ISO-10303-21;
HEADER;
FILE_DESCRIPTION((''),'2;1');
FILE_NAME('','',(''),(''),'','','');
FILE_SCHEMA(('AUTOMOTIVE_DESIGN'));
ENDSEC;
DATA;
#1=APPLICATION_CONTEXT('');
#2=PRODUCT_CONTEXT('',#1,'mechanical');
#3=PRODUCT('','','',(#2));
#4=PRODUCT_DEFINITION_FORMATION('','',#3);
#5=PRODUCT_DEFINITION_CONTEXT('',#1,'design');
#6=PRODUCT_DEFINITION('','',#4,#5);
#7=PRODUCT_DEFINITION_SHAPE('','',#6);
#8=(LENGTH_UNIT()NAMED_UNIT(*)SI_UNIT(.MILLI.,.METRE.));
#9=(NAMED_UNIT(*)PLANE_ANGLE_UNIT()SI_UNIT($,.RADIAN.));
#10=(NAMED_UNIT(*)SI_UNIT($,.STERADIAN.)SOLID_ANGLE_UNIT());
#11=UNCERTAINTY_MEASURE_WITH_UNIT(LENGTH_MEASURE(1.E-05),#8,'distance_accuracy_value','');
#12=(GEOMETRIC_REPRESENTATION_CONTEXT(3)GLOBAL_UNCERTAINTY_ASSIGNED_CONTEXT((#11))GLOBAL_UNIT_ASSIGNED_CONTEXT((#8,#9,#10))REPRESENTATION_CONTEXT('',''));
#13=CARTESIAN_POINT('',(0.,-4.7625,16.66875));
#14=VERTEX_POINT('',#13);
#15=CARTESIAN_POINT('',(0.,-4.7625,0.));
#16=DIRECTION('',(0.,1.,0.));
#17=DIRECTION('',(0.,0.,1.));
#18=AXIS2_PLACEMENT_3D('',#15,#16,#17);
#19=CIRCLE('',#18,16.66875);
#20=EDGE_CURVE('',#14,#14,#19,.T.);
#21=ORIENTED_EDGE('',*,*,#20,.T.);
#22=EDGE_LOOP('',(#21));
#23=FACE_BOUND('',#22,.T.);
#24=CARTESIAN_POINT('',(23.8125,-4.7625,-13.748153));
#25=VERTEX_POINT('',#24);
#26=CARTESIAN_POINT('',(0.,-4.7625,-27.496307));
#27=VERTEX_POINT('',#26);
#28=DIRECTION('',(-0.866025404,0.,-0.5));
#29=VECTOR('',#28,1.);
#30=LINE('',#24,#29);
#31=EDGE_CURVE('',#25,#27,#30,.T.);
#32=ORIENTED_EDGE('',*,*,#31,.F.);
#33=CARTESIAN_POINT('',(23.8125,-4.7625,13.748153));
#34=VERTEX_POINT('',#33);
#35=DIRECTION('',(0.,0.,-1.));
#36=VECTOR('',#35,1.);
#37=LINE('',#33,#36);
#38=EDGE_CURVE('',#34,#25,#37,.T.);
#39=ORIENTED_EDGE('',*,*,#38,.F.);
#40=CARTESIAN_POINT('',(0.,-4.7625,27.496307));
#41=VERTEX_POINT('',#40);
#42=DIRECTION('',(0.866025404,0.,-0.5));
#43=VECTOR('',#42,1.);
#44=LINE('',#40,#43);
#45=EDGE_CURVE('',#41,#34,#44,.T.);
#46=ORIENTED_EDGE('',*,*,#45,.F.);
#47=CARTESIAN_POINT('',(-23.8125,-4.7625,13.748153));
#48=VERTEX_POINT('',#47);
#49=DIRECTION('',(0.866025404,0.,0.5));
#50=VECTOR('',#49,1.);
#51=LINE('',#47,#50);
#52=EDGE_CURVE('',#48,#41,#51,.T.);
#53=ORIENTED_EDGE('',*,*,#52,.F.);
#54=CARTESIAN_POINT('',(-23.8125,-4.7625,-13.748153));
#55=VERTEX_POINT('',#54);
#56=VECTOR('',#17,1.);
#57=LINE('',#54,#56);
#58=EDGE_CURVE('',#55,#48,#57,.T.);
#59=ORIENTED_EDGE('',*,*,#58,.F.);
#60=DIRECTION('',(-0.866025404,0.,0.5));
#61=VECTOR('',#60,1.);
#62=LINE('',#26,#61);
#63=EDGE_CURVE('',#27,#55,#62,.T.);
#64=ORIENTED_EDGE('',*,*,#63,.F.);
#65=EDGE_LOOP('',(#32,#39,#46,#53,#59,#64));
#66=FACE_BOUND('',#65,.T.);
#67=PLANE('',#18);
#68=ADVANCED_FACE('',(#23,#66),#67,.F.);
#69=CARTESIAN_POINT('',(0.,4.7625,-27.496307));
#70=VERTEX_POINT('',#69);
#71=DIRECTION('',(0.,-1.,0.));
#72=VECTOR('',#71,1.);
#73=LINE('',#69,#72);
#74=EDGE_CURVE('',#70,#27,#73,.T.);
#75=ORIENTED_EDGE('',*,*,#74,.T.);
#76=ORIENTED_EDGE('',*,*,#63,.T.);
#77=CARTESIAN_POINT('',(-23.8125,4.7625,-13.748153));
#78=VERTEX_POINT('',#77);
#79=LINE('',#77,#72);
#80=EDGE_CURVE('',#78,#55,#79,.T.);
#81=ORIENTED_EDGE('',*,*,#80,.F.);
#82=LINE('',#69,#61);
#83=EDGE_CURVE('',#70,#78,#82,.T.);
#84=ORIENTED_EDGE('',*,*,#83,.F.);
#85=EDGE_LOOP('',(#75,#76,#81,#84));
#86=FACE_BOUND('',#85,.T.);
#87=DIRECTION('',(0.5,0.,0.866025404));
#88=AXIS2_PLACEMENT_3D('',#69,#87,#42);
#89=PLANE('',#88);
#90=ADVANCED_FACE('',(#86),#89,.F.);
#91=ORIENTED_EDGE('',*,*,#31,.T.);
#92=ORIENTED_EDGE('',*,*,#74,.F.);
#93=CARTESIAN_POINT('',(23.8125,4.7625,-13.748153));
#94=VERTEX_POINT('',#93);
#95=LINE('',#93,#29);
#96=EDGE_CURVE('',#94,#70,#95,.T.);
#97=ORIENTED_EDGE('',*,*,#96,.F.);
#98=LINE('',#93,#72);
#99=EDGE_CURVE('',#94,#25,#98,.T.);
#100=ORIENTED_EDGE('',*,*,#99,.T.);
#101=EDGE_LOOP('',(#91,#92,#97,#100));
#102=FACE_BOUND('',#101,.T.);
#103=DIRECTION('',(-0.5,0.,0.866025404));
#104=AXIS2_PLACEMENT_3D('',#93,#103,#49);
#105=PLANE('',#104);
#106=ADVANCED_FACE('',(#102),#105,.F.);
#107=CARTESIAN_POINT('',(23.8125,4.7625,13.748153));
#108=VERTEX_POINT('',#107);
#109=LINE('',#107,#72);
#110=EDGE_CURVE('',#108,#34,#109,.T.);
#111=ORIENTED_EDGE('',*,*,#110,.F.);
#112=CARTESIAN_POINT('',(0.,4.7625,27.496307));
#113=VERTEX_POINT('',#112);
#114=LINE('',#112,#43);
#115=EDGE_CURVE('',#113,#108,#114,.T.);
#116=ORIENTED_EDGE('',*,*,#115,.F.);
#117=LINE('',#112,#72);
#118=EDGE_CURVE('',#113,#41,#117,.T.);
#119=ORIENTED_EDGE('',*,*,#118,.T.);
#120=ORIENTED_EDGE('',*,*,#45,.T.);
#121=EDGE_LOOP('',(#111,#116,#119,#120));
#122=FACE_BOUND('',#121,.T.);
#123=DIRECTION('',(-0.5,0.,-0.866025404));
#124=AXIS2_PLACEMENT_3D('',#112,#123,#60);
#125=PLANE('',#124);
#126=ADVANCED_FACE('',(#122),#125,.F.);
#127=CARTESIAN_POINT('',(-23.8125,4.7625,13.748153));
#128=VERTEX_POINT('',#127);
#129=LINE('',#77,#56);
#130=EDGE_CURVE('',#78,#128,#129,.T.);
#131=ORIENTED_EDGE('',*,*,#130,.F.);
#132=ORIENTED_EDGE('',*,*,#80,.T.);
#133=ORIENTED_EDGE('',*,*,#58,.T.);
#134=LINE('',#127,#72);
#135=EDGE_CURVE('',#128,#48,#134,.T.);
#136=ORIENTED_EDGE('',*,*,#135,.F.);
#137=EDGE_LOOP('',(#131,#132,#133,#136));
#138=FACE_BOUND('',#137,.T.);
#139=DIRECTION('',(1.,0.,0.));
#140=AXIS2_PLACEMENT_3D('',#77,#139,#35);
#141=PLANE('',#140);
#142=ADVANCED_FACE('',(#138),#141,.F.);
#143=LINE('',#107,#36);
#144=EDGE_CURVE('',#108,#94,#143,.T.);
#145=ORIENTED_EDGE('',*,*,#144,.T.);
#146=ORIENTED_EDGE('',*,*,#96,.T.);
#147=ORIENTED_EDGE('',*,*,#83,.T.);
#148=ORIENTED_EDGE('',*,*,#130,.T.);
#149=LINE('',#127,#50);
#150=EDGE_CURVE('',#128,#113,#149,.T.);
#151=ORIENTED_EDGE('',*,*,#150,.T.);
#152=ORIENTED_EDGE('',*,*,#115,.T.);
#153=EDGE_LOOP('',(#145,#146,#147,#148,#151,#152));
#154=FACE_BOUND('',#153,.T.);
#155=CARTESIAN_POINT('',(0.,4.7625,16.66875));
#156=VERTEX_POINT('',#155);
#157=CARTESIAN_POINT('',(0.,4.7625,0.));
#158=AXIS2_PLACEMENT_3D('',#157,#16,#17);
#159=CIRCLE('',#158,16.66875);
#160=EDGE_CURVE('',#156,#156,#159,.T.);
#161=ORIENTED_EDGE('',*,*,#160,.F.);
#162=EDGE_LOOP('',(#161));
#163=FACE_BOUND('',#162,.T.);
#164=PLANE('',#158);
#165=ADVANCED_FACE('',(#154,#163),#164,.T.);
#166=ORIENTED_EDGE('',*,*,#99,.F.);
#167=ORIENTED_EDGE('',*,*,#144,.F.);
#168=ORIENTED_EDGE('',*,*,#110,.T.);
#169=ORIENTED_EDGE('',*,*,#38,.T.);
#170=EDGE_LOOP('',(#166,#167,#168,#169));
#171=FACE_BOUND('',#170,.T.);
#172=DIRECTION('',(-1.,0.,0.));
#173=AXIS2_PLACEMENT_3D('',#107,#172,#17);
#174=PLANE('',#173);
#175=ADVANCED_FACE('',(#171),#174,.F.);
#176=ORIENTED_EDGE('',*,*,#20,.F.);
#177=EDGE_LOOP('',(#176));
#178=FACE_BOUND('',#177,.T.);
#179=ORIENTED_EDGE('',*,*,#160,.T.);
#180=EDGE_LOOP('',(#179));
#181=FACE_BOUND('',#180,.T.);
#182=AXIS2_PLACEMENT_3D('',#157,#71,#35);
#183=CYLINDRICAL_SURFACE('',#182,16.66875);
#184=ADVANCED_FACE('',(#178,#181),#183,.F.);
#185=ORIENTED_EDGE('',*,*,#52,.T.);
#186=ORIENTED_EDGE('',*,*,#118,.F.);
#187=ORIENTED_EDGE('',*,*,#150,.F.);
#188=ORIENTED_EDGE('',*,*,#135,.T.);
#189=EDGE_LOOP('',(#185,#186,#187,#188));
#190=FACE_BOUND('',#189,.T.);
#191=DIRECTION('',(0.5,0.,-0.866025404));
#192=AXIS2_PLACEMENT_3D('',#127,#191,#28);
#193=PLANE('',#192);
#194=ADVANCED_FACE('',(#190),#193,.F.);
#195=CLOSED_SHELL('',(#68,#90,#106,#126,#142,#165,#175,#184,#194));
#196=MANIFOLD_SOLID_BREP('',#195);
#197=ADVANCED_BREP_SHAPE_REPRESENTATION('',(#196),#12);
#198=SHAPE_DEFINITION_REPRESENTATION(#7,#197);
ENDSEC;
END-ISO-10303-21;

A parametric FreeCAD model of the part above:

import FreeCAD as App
import Part
import Sketcher
from FreeCAD import Vector
Q = App.Units.Quantity

doc = App.newDocument("Part")
body = doc.addObject("PartDesign::Body", "Body")

# Sketch on XZ plane
sketch1 = doc.addObject("Sketcher::SketchObject", "Sketch")
body.addObject(sketch1)
sketch1.AttachmentSupport = (doc.XZ_Plane, [""])
sketch1.MapMode = "FlatFace"
sketch1.addGeometry(Part.LineSegment(Vector(0, -27.496307, 0), Vector(-23.8125, -13.748153, 0)), False)
sketch1.addGeometry(Part.LineSegment(Vector(-23.8125, -13.748153, 0), Vector(-23.8125, 13.748153, 0)), False)
sketch1.addGeometry(Part.LineSegment(Vector(-23.8125, 13.748153, 0), Vector(0, 27.496307, 0)), False)
sketch1.addGeometry(Part.LineSegment(Vector(0, 27.496307, 0), Vector(23.8125, 13.748153, 0)), False)
sketch1.addGeometry(Part.LineSegment(Vector(23.8125, 13.748153, 0), Vector(23.8125, -13.748153, 0)), False)
sketch1.addGeometry(Part.LineSegment(Vector(23.8125, -13.748153, 0), Vector(0, -27.496307, 0)), False)
sketch1.addGeometry(Part.Circle(Vector(0, 0, 0), Vector(0, 0, 1), 16.66875), False)
sketch1.addConstraint(Sketcher.Constraint("Coincident", 0, 2, 1, 1))
sketch1.addConstraint(Sketcher.Constraint("Coincident", 1, 2, 2, 1))
sketch1.addConstraint(Sketcher.Constraint("Coincident", 2, 2, 3, 1))
sketch1.addConstraint(Sketcher.Constraint("Coincident", 3, 2, 4, 1))
sketch1.addConstraint(Sketcher.Constraint("Coincident", 4, 2, 5, 1))
sketch1.addConstraint(Sketcher.Constraint("Coincident", 5, 2, 0, 1))
sketch1.addConstraint(Sketcher.Constraint("Vertical", 1))
sketch1.addConstraint(Sketcher.Constraint("Vertical", 4))
sketch1.addConstraint(Sketcher.Constraint("Coincident", 6, 3, -1, 1))
sketch1.addConstraint(Sketcher.Constraint("Symmetric", 0, 2, 3, 2, -1, 1))
sketch1.addConstraint(Sketcher.Constraint("Symmetric", 2, 2, 5, 2, -1, 1))
sketch1.addConstraint(Sketcher.Constraint("PointOnObject", 2, 2, -2))
sketch1.addConstraint(Sketcher.Constraint("Parallel", 2, 5))
sketch1.addConstraint(Sketcher.Constraint("Horizontal", 1, 2, 3, 2))
sketch1.addConstraint(Sketcher.Constraint("Diameter", 6, Q("1.3125 in")))
sketch1.addConstraint(Sketcher.Constraint("Angle", 0, Q("150 deg")))
sketch1.addConstraint(Sketcher.Constraint("DistanceX", 0, 2, -1, 1, Q("0.9375 in")))
sketch1.addConstraint(Sketcher.Constraint("DistanceY", 1, 1, 1, 2, 27.496307))
pad1 = doc.addObject("PartDesign::Pad", "Pad")
body.addObject(pad1)
pad1.Profile = sketch1
pad1.Length = Q("0.375 in")
pad1.Midplane = True

doc.recompute()
